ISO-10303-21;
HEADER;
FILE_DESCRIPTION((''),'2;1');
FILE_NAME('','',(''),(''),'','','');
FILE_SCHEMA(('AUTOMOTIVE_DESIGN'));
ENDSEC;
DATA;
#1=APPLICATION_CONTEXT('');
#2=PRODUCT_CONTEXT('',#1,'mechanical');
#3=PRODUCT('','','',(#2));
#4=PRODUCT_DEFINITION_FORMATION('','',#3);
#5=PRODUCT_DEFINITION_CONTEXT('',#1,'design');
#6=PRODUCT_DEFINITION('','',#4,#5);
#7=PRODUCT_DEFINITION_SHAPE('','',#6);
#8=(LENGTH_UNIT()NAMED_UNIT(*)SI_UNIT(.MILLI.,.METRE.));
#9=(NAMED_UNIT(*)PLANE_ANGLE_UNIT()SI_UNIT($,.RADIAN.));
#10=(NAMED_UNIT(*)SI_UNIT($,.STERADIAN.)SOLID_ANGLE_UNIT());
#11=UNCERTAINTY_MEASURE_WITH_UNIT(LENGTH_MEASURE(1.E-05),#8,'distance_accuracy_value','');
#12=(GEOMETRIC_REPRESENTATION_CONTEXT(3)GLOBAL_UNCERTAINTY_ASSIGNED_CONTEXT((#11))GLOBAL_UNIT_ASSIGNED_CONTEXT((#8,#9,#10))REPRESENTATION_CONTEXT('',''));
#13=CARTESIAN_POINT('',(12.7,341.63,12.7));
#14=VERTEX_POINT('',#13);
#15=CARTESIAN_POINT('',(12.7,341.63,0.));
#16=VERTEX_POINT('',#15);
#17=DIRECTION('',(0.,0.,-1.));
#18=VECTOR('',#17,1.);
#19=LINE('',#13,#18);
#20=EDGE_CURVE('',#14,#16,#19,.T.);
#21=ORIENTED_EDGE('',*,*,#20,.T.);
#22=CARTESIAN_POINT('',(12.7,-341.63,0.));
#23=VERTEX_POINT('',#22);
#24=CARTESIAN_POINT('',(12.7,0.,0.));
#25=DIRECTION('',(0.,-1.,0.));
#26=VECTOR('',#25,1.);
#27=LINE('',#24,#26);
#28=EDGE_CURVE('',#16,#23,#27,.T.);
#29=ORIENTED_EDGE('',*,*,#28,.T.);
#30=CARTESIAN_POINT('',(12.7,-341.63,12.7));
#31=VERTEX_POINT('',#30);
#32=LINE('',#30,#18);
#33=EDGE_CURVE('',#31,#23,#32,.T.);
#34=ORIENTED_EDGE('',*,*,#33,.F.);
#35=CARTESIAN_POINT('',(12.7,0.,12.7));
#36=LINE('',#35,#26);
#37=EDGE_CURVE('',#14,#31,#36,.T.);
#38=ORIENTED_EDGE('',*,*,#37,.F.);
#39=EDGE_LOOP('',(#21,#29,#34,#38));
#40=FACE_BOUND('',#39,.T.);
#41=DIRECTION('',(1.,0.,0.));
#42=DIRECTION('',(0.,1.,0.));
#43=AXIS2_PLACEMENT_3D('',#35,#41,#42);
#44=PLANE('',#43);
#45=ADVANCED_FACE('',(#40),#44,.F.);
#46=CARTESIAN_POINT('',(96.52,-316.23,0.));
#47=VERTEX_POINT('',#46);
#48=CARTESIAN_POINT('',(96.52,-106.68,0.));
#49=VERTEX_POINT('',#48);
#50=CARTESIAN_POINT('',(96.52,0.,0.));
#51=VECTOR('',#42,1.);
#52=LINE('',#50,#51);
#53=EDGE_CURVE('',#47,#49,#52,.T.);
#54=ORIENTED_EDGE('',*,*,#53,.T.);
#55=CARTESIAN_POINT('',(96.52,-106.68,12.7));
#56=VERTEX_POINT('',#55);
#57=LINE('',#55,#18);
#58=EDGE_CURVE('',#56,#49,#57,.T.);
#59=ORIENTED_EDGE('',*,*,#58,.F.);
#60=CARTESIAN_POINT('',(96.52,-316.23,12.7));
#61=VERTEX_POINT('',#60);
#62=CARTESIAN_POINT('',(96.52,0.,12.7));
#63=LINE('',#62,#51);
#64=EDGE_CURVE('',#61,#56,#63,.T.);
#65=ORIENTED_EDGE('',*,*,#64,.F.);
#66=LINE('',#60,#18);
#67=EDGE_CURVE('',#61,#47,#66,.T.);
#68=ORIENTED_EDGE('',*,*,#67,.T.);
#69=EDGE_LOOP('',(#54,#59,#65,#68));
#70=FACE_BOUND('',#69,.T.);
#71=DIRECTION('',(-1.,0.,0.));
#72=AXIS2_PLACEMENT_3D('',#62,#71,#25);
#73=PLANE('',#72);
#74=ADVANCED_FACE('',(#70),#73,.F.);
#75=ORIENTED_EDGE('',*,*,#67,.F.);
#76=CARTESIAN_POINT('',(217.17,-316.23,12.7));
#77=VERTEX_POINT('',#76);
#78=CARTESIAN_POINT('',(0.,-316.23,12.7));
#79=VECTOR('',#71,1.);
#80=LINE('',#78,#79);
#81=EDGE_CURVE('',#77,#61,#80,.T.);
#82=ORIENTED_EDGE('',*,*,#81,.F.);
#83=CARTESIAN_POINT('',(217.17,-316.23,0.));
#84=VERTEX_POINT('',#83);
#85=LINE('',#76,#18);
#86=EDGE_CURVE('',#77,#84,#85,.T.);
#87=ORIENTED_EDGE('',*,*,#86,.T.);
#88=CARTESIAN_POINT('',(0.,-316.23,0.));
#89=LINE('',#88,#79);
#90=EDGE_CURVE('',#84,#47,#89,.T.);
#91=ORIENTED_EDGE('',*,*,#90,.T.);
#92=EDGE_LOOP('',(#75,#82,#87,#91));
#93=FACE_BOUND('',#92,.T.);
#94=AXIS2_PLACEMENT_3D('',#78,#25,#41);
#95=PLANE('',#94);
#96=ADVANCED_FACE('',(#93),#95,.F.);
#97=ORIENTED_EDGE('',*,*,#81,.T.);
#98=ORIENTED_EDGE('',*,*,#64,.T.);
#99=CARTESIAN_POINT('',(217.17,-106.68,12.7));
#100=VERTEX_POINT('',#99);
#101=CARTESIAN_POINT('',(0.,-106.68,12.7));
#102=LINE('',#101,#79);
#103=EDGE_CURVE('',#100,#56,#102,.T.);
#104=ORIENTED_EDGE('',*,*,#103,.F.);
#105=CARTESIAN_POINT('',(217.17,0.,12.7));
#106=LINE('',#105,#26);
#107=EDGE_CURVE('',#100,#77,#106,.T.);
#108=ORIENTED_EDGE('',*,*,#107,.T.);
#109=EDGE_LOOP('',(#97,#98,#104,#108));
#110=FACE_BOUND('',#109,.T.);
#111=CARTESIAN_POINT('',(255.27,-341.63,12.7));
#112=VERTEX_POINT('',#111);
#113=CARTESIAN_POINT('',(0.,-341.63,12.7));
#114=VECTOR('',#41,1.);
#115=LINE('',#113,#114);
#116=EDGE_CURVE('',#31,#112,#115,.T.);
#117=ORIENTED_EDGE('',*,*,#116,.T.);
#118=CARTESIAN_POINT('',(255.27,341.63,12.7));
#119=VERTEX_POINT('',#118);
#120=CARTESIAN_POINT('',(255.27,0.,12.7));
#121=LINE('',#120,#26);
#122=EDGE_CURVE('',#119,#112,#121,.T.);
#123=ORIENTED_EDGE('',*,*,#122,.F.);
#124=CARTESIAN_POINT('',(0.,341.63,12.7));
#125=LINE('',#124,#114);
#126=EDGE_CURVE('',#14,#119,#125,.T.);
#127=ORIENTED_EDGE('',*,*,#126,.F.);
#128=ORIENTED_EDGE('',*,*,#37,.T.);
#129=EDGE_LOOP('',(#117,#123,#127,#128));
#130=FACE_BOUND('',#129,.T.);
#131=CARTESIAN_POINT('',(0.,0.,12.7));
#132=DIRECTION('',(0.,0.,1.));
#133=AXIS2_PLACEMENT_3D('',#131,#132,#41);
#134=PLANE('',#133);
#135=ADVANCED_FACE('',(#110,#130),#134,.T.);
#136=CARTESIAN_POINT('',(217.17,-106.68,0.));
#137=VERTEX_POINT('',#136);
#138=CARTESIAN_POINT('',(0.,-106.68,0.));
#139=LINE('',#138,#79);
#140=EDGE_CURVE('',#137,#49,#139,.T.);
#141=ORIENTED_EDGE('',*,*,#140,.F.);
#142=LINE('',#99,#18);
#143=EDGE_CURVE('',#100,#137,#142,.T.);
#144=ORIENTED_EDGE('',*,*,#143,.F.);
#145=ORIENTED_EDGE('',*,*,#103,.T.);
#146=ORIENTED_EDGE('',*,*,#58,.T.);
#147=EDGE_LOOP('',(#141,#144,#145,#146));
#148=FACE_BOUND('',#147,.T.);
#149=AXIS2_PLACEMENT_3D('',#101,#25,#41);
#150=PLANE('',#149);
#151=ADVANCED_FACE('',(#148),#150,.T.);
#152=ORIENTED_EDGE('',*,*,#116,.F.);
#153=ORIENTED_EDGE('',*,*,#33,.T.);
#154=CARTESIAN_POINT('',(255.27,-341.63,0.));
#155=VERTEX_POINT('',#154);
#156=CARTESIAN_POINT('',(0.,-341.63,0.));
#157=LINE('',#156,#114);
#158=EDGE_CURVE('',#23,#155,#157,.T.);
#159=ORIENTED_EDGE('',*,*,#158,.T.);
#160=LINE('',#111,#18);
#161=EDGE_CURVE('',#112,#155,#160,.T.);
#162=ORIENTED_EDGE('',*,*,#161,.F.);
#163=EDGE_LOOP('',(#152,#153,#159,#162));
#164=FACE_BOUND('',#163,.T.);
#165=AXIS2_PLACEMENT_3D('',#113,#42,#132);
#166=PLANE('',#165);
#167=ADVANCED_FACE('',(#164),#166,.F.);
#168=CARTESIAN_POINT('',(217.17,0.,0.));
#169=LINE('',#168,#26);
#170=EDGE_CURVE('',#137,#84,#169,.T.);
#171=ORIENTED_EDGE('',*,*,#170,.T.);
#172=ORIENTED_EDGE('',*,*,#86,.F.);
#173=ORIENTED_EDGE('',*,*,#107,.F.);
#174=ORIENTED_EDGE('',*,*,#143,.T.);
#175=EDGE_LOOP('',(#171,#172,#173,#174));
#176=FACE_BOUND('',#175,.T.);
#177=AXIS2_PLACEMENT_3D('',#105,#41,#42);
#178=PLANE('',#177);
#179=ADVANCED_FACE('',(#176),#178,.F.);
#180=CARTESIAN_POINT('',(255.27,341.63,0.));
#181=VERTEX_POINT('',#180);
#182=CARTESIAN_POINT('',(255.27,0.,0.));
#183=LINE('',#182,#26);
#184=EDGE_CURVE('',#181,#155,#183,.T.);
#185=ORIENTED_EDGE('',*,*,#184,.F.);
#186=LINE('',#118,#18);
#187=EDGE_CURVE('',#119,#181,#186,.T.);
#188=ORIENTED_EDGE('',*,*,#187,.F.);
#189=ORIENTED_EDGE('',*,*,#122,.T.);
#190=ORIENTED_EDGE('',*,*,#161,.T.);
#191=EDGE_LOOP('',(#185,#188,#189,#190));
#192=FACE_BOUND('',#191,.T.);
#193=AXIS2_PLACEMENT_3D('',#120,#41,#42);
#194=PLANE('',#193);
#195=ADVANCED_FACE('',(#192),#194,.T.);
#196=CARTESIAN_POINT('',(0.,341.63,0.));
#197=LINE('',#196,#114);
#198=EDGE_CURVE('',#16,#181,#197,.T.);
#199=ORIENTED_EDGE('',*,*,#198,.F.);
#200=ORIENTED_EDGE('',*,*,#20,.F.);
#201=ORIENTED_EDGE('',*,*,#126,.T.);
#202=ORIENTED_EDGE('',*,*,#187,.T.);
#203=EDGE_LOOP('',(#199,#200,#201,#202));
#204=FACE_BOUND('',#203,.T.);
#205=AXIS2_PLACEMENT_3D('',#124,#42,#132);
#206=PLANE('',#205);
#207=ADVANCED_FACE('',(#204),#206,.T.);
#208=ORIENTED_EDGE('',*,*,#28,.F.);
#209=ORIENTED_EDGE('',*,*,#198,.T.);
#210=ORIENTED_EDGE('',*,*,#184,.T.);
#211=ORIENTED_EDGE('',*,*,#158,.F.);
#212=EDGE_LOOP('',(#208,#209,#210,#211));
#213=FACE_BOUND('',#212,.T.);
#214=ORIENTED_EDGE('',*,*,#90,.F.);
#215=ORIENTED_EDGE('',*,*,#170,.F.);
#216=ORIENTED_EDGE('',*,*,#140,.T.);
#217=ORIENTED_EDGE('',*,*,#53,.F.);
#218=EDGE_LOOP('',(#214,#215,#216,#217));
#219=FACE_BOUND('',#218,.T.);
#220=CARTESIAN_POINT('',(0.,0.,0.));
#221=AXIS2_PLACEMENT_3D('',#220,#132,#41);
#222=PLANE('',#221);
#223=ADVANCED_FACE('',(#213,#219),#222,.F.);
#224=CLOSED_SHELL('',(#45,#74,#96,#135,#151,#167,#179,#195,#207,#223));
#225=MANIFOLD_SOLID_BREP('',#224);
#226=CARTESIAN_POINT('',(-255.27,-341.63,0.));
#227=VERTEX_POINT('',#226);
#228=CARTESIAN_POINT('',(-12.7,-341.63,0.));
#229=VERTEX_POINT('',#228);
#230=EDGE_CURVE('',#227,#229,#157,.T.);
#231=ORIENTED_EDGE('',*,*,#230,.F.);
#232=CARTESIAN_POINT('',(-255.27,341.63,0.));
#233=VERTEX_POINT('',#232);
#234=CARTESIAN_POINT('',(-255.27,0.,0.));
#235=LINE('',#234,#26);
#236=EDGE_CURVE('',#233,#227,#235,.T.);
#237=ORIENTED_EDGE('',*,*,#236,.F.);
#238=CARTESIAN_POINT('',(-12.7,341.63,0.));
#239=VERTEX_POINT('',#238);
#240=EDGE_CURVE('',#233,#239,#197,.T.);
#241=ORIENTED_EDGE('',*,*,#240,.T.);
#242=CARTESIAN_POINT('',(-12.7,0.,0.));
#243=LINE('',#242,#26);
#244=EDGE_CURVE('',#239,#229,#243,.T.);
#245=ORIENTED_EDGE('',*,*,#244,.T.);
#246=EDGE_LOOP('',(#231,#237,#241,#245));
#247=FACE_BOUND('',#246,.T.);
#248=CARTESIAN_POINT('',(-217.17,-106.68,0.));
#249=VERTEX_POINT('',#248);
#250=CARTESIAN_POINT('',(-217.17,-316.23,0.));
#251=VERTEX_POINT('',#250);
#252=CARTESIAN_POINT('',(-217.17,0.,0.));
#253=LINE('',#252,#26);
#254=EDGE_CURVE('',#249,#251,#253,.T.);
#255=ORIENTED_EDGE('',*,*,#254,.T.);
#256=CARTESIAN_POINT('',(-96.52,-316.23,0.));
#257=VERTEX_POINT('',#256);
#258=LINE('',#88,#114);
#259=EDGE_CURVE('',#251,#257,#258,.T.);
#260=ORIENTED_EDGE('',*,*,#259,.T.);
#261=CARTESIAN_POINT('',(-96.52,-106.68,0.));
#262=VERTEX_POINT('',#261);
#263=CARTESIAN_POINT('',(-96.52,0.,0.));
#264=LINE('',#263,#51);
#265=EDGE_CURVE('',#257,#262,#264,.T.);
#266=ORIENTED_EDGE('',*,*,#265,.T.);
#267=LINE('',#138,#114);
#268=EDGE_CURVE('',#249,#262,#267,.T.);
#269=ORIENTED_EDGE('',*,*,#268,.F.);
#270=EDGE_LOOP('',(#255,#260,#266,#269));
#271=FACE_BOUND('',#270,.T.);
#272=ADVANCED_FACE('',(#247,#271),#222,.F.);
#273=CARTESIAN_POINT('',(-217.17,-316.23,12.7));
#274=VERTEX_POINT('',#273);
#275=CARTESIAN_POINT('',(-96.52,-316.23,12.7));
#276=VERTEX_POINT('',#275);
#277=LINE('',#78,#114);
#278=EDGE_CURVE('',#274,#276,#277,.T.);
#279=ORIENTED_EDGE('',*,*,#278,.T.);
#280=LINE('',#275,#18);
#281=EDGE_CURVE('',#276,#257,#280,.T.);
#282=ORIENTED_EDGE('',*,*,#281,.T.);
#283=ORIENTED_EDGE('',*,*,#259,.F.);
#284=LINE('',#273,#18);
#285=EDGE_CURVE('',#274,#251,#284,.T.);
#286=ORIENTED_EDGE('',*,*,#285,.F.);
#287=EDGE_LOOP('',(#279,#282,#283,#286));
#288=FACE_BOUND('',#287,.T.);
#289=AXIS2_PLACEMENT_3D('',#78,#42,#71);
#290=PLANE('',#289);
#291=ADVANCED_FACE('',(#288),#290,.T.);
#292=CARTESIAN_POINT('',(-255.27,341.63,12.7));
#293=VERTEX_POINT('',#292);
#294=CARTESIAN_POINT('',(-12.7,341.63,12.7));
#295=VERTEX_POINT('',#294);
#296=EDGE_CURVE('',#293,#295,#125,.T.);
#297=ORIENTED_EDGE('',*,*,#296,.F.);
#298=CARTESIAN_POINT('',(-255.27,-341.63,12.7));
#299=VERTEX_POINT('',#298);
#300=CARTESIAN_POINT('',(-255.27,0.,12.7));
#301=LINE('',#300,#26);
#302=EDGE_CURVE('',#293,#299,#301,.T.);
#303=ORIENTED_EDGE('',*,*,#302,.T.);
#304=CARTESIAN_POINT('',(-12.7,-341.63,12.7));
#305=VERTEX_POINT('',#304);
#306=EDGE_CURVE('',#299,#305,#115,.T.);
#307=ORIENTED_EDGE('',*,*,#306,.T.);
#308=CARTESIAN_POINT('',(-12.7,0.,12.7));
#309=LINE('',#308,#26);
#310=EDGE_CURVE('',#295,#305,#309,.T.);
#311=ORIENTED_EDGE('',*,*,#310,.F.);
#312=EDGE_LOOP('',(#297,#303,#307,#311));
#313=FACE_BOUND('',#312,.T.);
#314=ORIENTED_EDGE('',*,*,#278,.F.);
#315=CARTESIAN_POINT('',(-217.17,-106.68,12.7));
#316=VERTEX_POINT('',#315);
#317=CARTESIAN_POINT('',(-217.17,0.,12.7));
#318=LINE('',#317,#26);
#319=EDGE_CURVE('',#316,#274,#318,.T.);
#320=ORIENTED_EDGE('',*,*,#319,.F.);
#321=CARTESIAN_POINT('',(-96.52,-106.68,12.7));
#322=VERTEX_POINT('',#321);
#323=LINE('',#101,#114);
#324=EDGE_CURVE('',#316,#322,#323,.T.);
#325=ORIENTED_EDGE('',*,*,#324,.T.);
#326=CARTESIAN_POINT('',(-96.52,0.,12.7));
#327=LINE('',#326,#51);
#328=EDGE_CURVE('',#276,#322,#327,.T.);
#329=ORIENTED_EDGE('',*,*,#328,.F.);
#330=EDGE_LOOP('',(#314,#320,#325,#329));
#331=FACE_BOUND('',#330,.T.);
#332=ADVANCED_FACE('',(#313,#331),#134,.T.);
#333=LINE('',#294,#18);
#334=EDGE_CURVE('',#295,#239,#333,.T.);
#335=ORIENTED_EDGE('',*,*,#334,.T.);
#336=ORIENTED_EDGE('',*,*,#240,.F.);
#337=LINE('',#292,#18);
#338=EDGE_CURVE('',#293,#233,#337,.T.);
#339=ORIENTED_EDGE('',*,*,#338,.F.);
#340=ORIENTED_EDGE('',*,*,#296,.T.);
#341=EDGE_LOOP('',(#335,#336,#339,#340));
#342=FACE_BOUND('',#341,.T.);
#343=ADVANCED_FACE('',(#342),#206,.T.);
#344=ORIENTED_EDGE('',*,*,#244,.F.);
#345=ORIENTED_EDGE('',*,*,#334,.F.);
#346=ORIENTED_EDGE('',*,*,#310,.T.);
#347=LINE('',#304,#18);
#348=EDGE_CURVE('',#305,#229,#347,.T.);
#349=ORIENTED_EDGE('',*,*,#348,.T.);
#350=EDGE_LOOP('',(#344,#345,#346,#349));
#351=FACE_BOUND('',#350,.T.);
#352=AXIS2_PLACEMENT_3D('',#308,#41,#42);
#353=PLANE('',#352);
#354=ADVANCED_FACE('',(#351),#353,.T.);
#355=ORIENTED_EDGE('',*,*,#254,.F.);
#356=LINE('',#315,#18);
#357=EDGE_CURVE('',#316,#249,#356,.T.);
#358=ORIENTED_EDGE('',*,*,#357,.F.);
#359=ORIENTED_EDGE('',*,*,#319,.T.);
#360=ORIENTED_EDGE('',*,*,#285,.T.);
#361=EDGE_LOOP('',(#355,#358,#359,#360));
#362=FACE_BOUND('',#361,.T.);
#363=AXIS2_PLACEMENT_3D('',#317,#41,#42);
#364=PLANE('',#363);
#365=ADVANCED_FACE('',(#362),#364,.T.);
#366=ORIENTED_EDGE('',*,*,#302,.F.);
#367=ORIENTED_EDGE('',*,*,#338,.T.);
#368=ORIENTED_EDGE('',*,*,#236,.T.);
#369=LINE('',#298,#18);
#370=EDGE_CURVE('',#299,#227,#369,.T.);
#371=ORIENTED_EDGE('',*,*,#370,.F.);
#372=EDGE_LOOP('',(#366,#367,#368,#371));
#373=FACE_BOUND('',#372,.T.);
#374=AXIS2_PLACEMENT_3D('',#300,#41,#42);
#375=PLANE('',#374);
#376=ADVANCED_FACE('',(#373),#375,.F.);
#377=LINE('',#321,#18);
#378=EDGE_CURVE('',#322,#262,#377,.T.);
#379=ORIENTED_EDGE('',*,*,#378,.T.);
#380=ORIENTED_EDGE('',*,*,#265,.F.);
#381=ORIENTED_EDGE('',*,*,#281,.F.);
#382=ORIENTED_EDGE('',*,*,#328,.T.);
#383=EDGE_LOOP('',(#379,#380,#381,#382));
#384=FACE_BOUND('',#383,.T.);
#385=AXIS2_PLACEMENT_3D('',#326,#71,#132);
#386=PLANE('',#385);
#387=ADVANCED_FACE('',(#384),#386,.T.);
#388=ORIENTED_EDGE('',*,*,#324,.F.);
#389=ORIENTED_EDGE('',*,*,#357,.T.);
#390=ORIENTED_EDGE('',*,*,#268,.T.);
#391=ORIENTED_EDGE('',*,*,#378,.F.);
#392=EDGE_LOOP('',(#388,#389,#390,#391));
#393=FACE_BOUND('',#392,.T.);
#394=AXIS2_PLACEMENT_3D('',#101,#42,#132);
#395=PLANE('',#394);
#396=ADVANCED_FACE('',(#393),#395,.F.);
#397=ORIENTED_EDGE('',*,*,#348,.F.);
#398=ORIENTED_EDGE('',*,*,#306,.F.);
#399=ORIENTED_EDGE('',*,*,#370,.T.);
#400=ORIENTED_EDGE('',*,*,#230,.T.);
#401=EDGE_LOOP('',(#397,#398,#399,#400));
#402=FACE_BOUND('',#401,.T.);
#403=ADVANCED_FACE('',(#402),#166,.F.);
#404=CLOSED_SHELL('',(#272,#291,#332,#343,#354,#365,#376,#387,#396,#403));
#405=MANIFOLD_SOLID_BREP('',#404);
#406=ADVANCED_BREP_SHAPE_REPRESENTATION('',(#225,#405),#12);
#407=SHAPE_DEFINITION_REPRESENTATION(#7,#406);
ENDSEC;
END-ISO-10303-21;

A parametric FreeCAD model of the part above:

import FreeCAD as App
import Part
import Sketcher

V = App.Vector
Q = App.Units.Quantity

doc = App.newDocument("Part")
params = doc.addObject("Spreadsheet::Sheet", "Params")
for row, (alias, value) in enumerate([
    ("sketch1_height", "26.9 in"),
    ("sketch1_width", "9.55 in"),
    ("sketch1_width2", "4.75 in"),
    ("sketch1_height2", "8.25 in"),
    ("pad1_length", "0.5 in"),
    ("sketch2_height", "26.9 in"),
    ("sketch2_width", "9.55 in"),
    ("sketch2_width2", "4.75 in"),
    ("sketch2_height2", "8.25 in"),
    ("pad2_length", "0.5 in"),
], start=1):
    params.set(f"A{row}", alias)
    params.set(f"B{row}", "=" + value)
    params.setAlias(f"B{row}", alias)

body = doc.addObject("PartDesign::Body", "Body")

# Sketch on XY plane
sketch1 = body.newObject("Sketcher::SketchObject", "Sketch")
sketch1.AttachmentSupport = (doc.getObject("XY_Plane"), [""])
sketch1.MapMode = "FlatFace"
sketch1.addGeometry(Part.LineSegment(V(-255, 342, 0), V(-255, -342, 0)), False)
sketch1.addGeometry(Part.LineSegment(V(-255, -342, 0), V(-13, -342, 0)), False)
sketch1.addGeometry(Part.LineSegment(V(-13, -342, 0), V(-13, 342, 0)), False)
sketch1.addGeometry(Part.LineSegment(V(-13, 342, 0), V(-255, 342, 0)), False)
sketch1.addGeometry(Part.LineSegment(V(-97, -316, 0), V(-217, -316, 0)), False)
sketch1.addGeometry(Part.LineSegment(V(-217, -316, 0), V(-217, -107, 0)), False)
sketch1.addGeometry(Part.LineSegment(V(-217, -107, 0), V(-97, -107, 0)), False)
sketch1.addGeometry(Part.LineSegment(V(-97, -107, 0), V(-97, -316, 0)), False)
sketch1.addConstraint(Sketcher.Constraint("Coincident", 0, 2, 1, 1))
sketch1.addConstraint(Sketcher.Constraint("Coincident", 1, 2, 2, 1))
sketch1.addConstraint(Sketcher.Constraint("Coincident", 2, 2, 3, 1))
sketch1.addConstraint(Sketcher.Constraint("Coincident", 3, 2, 0, 1))
sketch1.addConstraint(Sketcher.Constraint("Coincident", 4, 2, 5, 1))
sketch1.addConstraint(Sketcher.Constraint("Coincident", 5, 2, 6, 1))
sketch1.addConstraint(Sketcher.Constraint("Coincident", 6, 2, 7, 1))
sketch1.addConstraint(Sketcher.Constraint("Coincident", 7, 2, 4, 1))
sketch1.addConstraint(Sketcher.Constraint("Vertical", 0))
sketch1.addConstraint(Sketcher.Constraint("Horizontal", 1))
sketch1.addConstraint(Sketcher.Constraint("Vertical", 2))
sketch1.addConstraint(Sketcher.Constraint("Horizontal", 3))
sketch1.addConstraint(Sketcher.Constraint("Horizontal", 4))
sketch1.addConstraint(Sketcher.Constraint("Vertical", 5))
sketch1.addConstraint(Sketcher.Constraint("Horizontal", 6))
sketch1.addConstraint(Sketcher.Constraint("Vertical", 7))
sketch1.addConstraint(Sketcher.Constraint("DistanceY", 0, 2, 0, 1, Q("26.9 in")))
sketch1.addConstraint(Sketcher.Constraint("DistanceY", 0, 2, 4, 2, Q("1 in")))
sketch1.addConstraint(Sketcher.Constraint("DistanceX", 1, 1, 1, 2, Q("9.55 in")))
sketch1.addConstraint(Sketcher.Constraint("DistanceX", 4, 2, 4, 1, Q("4.75 in")))
sketch1.addConstraint(Sketcher.Constraint("DistanceY", 5, 1, 5, 2, Q("8.25 in")))
sketch1.addConstraint(Sketcher.Constraint("DistanceX", 1, 2, -1, 1, Q("0.5 in")))
sketch1.addConstraint(Sketcher.Constraint("DistanceY", 5, 2, -1, 1, Q("4.2 in")))
sketch1.addConstraint(Sketcher.Constraint("DistanceX", 6, 2, -1, 1, Q("3.8 in")))
sketch1.setExpression("Constraints[16]", "Params.sketch1_height")
sketch1.setExpression("Constraints[18]", "Params.sketch1_width")
sketch1.setExpression("Constraints[19]", "Params.sketch1_width2")
sketch1.setExpression("Constraints[20]", "Params.sketch1_height2")
pad1 = body.newObject("PartDesign::Pad", "Pad")
pad1.Profile = sketch1
pad1.setExpression("Length", "Params.pad1_length")
body2 = doc.addObject("PartDesign::Body", "Body001")

# Sketch on XY plane
sketch2 = body2.newObject("Sketcher::SketchObject", "Sketch001")
sketch2.AttachmentSupport = (doc.getObject("XY_Plane001"), [""])
sketch2.MapMode = "FlatFace"
sketch2.addGeometry(Part.LineSegment(V(13, 342, 0), V(13, -342, 0)), False)
sketch2.addGeometry(Part.LineSegment(V(13, -342, 0), V(255, -342, 0)), False)
sketch2.addGeometry(Part.LineSegment(V(255, -342, 0), V(255, 342, 0)), False)
sketch2.addGeometry(Part.LineSegment(V(255, 342, 0), V(13, 342, 0)), False)
sketch2.addGeometry(Part.LineSegment(V(217, -316, 0), V(97, -316, 0)), False)
sketch2.addGeometry(Part.LineSegment(V(97, -316, 0), V(97, -107, 0)), False)
sketch2.addGeometry(Part.LineSegment(V(97, -107, 0), V(217, -107, 0)), False)
sketch2.addGeometry(Part.LineSegment(V(217, -107, 0), V(217, -316, 0)), False)
sketch2.addConstraint(Sketcher.Constraint("Coincident", 0, 2, 1, 1))
sketch2.addConstraint(Sketcher.Constraint("Coincident", 1, 2, 2, 1))
sketch2.addConstraint(Sketcher.Constraint("Coincident", 2, 2, 3, 1))
sketch2.addConstraint(Sketcher.Constraint("Coincident", 3, 2, 0, 1))
sketch2.addConstraint(Sketcher.Constraint("Coincident", 4, 2, 5, 1))
sketch2.addConstraint(Sketcher.Constraint("Coincident", 5, 2, 6, 1))
sketch2.addConstraint(Sketcher.Constraint("Coincident", 6, 2, 7, 1))
sketch2.addConstraint(Sketcher.Constraint("Coincident", 7, 2, 4, 1))
sketch2.addConstraint(Sketcher.Constraint("Vertical", 0))
sketch2.addConstraint(Sketcher.Constraint("Horizontal", 1))
sketch2.addConstraint(Sketcher.Constraint("Vertical", 2))
sketch2.addConstraint(Sketcher.Constraint("Horizontal", 3))
sketch2.addConstraint(Sketcher.Constraint("Horizontal", 4))
sketch2.addConstraint(Sketcher.Constraint("Vertical", 5))
sketch2.addConstraint(Sketcher.Constraint("Horizontal", 6))
sketch2.addConstraint(Sketcher.Constraint("Vertical", 7))
sketch2.addConstraint(Sketcher.Constraint("DistanceY", 0, 2, 0, 1, Q("26.9 in")))
sketch2.addConstraint(Sketcher.Constraint("DistanceY", 0, 2, 4, 2, Q("1 in")))
sketch2.addConstraint(Sketcher.Constraint("DistanceX", 1, 1, 1, 2, Q("9.55 in")))
sketch2.addConstraint(Sketcher.Constraint("DistanceX", 4, 2, 4, 1, Q("4.75 in")))
sketch2.addConstraint(Sketcher.Constraint("DistanceY", 5, 1, 5, 2, Q("8.25 in")))
sketch2.addConstraint(Sketcher.Constraint("DistanceX", -1, 1, 0, 2, Q("0.5 in")))
sketch2.addConstraint(Sketcher.Constraint("DistanceX", -1, 1, 4, 2, Q("3.8 in")))
sketch2.addConstraint(Sketcher.Constraint("DistanceY", 5, 2, -1, 1, Q("4.2 in")))
sketch2.setExpression("Constraints[16]", "Params.sketch2_height")
sketch2.setExpression("Constraints[18]", "Params.sketch2_width")
sketch2.setExpression("Constraints[19]", "Params.sketch2_width2")
sketch2.setExpression("Constraints[20]", "Params.sketch2_height2")
pad2 = body2.newObject("PartDesign::Pad", "Pad001")
pad2.Profile = sketch2
pad2.setExpression("Length", "Params.pad2_length")

doc.recompute()
